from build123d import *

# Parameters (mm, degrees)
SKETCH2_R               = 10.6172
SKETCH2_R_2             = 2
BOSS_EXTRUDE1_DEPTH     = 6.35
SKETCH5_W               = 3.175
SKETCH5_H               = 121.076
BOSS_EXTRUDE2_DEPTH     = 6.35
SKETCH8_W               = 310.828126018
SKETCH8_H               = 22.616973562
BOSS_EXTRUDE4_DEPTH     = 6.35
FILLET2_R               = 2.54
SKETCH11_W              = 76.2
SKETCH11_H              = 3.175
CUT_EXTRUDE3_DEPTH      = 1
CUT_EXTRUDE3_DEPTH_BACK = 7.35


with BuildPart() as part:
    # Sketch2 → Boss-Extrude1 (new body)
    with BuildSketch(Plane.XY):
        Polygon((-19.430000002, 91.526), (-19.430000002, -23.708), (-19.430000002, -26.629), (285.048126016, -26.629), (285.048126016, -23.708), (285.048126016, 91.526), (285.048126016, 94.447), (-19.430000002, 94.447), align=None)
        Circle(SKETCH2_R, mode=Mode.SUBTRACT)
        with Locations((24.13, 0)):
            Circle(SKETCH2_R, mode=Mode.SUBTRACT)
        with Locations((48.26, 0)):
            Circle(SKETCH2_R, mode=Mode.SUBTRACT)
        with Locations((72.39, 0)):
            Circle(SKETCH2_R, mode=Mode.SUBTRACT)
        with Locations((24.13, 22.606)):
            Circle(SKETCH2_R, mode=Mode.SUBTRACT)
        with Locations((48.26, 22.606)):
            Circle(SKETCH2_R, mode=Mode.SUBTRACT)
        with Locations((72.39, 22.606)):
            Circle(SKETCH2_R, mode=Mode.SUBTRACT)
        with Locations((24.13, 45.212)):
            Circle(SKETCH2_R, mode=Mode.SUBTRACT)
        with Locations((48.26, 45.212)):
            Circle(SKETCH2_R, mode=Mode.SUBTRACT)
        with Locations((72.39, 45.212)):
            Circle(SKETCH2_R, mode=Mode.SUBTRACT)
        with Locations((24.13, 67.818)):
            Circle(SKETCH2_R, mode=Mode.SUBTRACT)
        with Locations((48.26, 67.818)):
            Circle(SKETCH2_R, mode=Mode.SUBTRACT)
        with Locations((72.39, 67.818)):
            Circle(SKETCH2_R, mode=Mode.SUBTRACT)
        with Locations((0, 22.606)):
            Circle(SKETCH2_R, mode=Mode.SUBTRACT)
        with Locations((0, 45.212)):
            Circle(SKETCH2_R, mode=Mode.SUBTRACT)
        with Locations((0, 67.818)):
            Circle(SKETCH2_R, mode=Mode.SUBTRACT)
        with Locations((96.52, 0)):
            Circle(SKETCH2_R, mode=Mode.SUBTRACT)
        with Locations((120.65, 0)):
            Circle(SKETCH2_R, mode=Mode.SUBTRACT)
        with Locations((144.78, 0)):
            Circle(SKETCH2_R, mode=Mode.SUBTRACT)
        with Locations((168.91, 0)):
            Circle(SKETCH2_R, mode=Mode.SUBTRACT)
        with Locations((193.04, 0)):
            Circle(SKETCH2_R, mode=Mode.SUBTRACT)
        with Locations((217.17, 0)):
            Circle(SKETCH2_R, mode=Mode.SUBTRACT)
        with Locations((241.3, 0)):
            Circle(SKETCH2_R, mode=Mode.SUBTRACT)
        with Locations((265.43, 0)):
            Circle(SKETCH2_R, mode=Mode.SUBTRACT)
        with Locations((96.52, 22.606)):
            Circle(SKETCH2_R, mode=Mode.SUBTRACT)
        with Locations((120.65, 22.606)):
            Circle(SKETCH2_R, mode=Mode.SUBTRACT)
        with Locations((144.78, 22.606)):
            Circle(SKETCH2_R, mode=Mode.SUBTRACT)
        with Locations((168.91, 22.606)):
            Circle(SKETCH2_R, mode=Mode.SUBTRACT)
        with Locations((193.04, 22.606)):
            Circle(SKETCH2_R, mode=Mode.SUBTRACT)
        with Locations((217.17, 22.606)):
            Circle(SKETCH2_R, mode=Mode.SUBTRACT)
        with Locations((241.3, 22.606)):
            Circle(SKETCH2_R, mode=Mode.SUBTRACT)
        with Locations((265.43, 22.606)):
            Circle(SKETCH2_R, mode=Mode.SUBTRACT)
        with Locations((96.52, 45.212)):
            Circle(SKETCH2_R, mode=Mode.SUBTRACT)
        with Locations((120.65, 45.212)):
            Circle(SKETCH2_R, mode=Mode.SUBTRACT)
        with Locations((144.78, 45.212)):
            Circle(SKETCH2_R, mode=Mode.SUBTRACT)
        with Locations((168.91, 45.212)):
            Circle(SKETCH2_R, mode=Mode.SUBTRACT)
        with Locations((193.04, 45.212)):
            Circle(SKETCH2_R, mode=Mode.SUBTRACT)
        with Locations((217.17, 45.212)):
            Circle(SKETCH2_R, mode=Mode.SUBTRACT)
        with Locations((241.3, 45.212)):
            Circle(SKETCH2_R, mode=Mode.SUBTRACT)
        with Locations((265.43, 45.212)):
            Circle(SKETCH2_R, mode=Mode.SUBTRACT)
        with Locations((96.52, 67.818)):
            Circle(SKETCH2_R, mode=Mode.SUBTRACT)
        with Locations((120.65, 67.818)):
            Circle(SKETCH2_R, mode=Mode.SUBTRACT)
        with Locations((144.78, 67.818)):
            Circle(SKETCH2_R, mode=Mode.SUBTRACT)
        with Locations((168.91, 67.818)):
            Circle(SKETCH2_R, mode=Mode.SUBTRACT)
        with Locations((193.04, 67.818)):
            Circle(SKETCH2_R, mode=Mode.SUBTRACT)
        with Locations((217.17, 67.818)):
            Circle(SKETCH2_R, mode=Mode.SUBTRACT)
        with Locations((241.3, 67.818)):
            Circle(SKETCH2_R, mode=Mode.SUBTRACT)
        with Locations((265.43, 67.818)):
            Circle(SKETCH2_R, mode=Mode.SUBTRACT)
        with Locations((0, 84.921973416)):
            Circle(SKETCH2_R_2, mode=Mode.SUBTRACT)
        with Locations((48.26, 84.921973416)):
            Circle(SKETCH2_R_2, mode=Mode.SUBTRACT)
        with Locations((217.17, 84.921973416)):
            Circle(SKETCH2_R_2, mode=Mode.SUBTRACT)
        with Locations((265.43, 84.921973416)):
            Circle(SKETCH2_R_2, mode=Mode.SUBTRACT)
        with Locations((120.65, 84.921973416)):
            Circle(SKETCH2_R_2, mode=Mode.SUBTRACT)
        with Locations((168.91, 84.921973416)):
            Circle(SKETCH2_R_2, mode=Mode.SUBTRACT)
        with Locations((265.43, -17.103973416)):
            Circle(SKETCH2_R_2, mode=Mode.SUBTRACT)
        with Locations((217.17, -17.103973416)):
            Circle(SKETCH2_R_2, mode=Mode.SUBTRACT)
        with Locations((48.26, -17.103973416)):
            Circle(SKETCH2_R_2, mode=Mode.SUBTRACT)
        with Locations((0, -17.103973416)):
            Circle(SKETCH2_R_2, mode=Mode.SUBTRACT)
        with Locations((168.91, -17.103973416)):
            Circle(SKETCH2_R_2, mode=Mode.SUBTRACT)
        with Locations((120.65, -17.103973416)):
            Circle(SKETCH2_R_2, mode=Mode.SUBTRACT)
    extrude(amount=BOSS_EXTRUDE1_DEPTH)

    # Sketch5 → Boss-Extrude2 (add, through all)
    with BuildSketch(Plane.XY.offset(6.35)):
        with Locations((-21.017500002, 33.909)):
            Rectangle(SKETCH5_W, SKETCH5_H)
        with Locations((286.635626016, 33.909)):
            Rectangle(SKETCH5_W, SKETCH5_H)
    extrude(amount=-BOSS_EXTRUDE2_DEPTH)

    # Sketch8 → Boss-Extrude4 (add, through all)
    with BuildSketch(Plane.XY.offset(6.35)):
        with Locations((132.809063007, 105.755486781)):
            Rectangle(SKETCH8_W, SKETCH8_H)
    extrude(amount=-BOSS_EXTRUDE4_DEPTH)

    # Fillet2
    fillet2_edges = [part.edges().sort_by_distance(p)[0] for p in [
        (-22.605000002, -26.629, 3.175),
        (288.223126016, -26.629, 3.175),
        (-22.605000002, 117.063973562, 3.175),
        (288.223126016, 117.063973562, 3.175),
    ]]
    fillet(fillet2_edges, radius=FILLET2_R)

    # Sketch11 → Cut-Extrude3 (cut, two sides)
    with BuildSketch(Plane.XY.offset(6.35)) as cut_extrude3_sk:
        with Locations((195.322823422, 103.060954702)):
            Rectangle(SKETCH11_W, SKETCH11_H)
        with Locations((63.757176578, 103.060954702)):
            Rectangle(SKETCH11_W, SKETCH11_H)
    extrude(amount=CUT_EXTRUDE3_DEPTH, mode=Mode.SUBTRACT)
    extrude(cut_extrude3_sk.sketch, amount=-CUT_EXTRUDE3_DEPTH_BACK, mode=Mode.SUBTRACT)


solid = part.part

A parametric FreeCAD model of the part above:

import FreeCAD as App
import Part
import Sketcher
from FreeCAD import Vector
Q = App.Units.Quantity


def edges_at(feature, points):
    """Names of the edges that pass closest to the given points."""
    edges = feature.Shape.Edges
    near = lambda p: min(range(len(edges)), key=lambda i: edges[i].distToShape(Part.Vertex(*p))[0])
    return sorted({f"Edge{near(p) + 1}" for p in points})


def add_polygon(sketch, points):
    """Adds a closed chain of lines whose ends are joined by coincident constraints."""
    first, n = sketch.GeometryCount, len(points)
    for a, b in zip(points, points[1:] + points[:1]):
        sketch.addGeometry(Part.LineSegment(App.Vector(*a, 0), App.Vector(*b, 0)), False)
    for i in range(n):
        sketch.addConstraint(Sketcher.Constraint("Coincident", first + i, 2, first + (i + 1) % n, 1))

doc = App.newDocument("Part")
params = doc.addObject("Spreadsheet::Sheet", "Params")
for row, (alias, value) in enumerate([
    ("sketch1_diameter", "0.836 in"),
    ("pad1_length", "0.25 in"),
    ("sketch2_width", "0.125 in"),
    ("pad3_length", "0.25 in"),
    ("fillet_radius", "0.1 in"),
    ("sketch4_width", "3 in"),
    ("sketch4_height", "0.125 in"),
], start=1):
    params.set(f"A{row}", alias)
    params.set(f"B{row}", "=" + value)
    params.setAlias(f"B{row}", alias)

body = doc.addObject("PartDesign::Body", "Body")

# Sketch on XY plane
sketch1 = body.newObject("Sketcher::SketchObject", "Sketch")
sketch1.AttachmentSupport = (doc.getObject("XY_Plane"), [""])
sketch1.MapMode = "FlatFace"
add_polygon(sketch1, [(-19.4, -26.6), (285, -26.6), (285, 94.4), (-19.4, 94.4)])  # lines 0-3
sketch1.addGeometry(Part.Circle(Vector(0, -17.1, 0), Vector(0, 0, 1), 2), False)  # 4
sketch1.addGeometry(Part.Circle(Vector(48.3, -17.1, 0), Vector(0, 0, 1), 2), False)  # 5
sketch1.addGeometry(Part.Circle(Vector(0, 0, 0), Vector(0, 0, 1), 10.6), False)  # 6
sketch1.addGeometry(Part.Circle(Vector(24.1, 0, 0), Vector(0, 0, 1), 10.6), False)  # 7
sketch1.addGeometry(Part.Circle(Vector(48.3, 0, 0), Vector(0, 0, 1), 10.6), False)  # 8
sketch1.addGeometry(Part.Circle(Vector(120.7, -17.1, 0), Vector(0, 0, 1), 2), False)  # 9
sketch1.addGeometry(Part.Circle(Vector(72.4, 0, 0), Vector(0, 0, 1), 10.6), False)  # 10
sketch1.addGeometry(Part.Circle(Vector(96.5, 0, 0), Vector(0, 0, 1), 10.6), False)  # 11
sketch1.addGeometry(Part.Circle(Vector(120.7, 0, 0), Vector(0, 0, 1), 10.6), False)  # 12
sketch1.addGeometry(Part.Circle(Vector(0, 22.6, 0), Vector(0, 0, 1), 10.6), False)  # 13
sketch1.addGeometry(Part.Circle(Vector(24.1, 22.6, 0), Vector(0, 0, 1), 10.6), False)  # 14
sketch1.addGeometry(Part.Circle(Vector(48.3, 22.6, 0), Vector(0, 0, 1), 10.6), False)  # 15
sketch1.addGeometry(Part.Circle(Vector(72.4, 22.6, 0), Vector(0, 0, 1), 10.6), False)  # 16
sketch1.addGeometry(Part.Circle(Vector(96.5, 22.6, 0), Vector(0, 0, 1), 10.6), False)  # 17
sketch1.addGeometry(Part.Circle(Vector(120.7, 22.6, 0), Vector(0, 0, 1), 10.6), False)  # 18
sketch1.addGeometry(Part.Circle(Vector(168.9, -17.1, 0), Vector(0, 0, 1), 2), False)  # 19
sketch1.addGeometry(Part.Circle(Vector(144.8, 0, 0), Vector(0, 0, 1), 10.6), False)  # 20
sketch1.addGeometry(Part.Circle(Vector(168.9, 0, 0), Vector(0, 0, 1), 10.6), False)  # 21
sketch1.addGeometry(Part.Circle(Vector(193, 0, 0), Vector(0, 0, 1), 10.6), False)  # 22
sketch1.addGeometry(Part.Circle(Vector(217.2, -17.1, 0), Vector(0, 0, 1), 2), False)  # 23
sketch1.addGeometry(Part.Circle(Vector(265.4, -17.1, 0), Vector(0, 0, 1), 2), False)  # 24
sketch1.addGeometry(Part.Circle(Vector(217.2, 0, 0), Vector(0, 0, 1), 10.6), False)  # 25
sketch1.addGeometry(Part.Circle(Vector(241.3, 0, 0), Vector(0, 0, 1), 10.6), False)  # 26
sketch1.addGeometry(Part.Circle(Vector(265.4, 0, 0), Vector(0, 0, 1), 10.6), False)  # 27
sketch1.addGeometry(Part.Circle(Vector(144.8, 22.6, 0), Vector(0, 0, 1), 10.6), False)  # 28
sketch1.addGeometry(Part.Circle(Vector(168.9, 22.6, 0), Vector(0, 0, 1), 10.6), False)  # 29
sketch1.addGeometry(Part.Circle(Vector(193, 22.6, 0), Vector(0, 0, 1), 10.6), False)  # 30
sketch1.addGeometry(Part.Circle(Vector(217.2, 22.6, 0), Vector(0, 0, 1), 10.6), False)  # 31
sketch1.addGeometry(Part.Circle(Vector(241.3, 22.6, 0), Vector(0, 0, 1), 10.6), False)  # 32
sketch1.addGeometry(Part.Circle(Vector(265.4, 22.6, 0), Vector(0, 0, 1), 10.6), False)  # 33
sketch1.addGeometry(Part.Circle(Vector(0, 45.2, 0), Vector(0, 0, 1), 10.6), False)  # 34
sketch1.addGeometry(Part.Circle(Vector(24.1, 45.2, 0), Vector(0, 0, 1), 10.6), False)  # 35
sketch1.addGeometry(Part.Circle(Vector(48.3, 45.2, 0), Vector(0, 0, 1), 10.6), False)  # 36
sketch1.addGeometry(Part.Circle(Vector(72.4, 45.2, 0), Vector(0, 0, 1), 10.6), False)  # 37
sketch1.addGeometry(Part.Circle(Vector(96.5, 45.2, 0), Vector(0, 0, 1), 10.6), False)  # 38
sketch1.addGeometry(Part.Circle(Vector(120.7, 45.2, 0), Vector(0, 0, 1), 10.6), False)  # 39
sketch1.addGeometry(Part.Circle(Vector(0, 67.8, 0), Vector(0, 0, 1), 10.6), False)  # 40
sketch1.addGeometry(Part.Circle(Vector(24.1, 67.8, 0), Vector(0, 0, 1), 10.6), False)  # 41
sketch1.addGeometry(Part.Circle(Vector(48.3, 67.8, 0), Vector(0, 0, 1), 10.6), False)  # 42
sketch1.addGeometry(Part.Circle(Vector(0, 84.9, 0), Vector(0, 0, 1), 2), False)  # 43
sketch1.addGeometry(Part.Circle(Vector(48.3, 84.9, 0), Vector(0, 0, 1), 2), False)  # 44
sketch1.addGeometry(Part.Circle(Vector(72.4, 67.8, 0), Vector(0, 0, 1), 10.6), False)  # 45
sketch1.addGeometry(Part.Circle(Vector(96.5, 67.8, 0), Vector(0, 0, 1), 10.6), False)  # 46
sketch1.addGeometry(Part.Circle(Vector(120.7, 67.8, 0), Vector(0, 0, 1), 10.6), False)  # 47
sketch1.addGeometry(Part.Circle(Vector(120.7, 84.9, 0), Vector(0, 0, 1), 2), False)  # 48
sketch1.addGeometry(Part.Circle(Vector(144.8, 45.2, 0), Vector(0, 0, 1), 10.6), False)  # 49
sketch1.addGeometry(Part.Circle(Vector(168.9, 45.2, 0), Vector(0, 0, 1), 10.6), False)  # 50
sketch1.addGeometry(Part.Circle(Vector(193, 45.2, 0), Vector(0, 0, 1), 10.6), False)  # 51
sketch1.addGeometry(Part.Circle(Vector(217.2, 45.2, 0), Vector(0, 0, 1), 10.6), False)  # 52
sketch1.addGeometry(Part.Circle(Vector(241.3, 45.2, 0), Vector(0, 0, 1), 10.6), False)  # 53
sketch1.addGeometry(Part.Circle(Vector(265.4, 45.2, 0), Vector(0, 0, 1), 10.6), False)  # 54
sketch1.addGeometry(Part.Circle(Vector(144.8, 67.8, 0), Vector(0, 0, 1), 10.6), False)  # 55
sketch1.addGeometry(Part.Circle(Vector(168.9, 67.8, 0), Vector(0, 0, 1), 10.6), False)  # 56
sketch1.addGeometry(Part.Circle(Vector(193, 67.8, 0), Vector(0, 0, 1), 10.6), False)  # 57
sketch1.addGeometry(Part.Circle(Vector(168.9, 84.9, 0), Vector(0, 0, 1), 2), False)  # 58
sketch1.addGeometry(Part.Circle(Vector(217.2, 67.8, 0), Vector(0, 0, 1), 10.6), False)  # 59
sketch1.addGeometry(Part.Circle(Vector(241.3, 67.8, 0), Vector(0, 0, 1), 10.6), False)  # 60
sketch1.addGeometry(Part.Circle(Vector(265.4, 67.8, 0), Vector(0, 0, 1), 10.6), False)  # 61
sketch1.addGeometry(Part.Circle(Vector(217.2, 84.9, 0), Vector(0, 0, 1), 2), False)  # 62
sketch1.addGeometry(Part.Circle(Vector(265.4, 84.9, 0), Vector(0, 0, 1), 2), False)  # 63
sketch1.addConstraint([
    Sketcher.Constraint("Horizontal", 0),
    Sketcher.Constraint("Vertical", 1),
    Sketcher.Constraint("Horizontal", 2),
    Sketcher.Constraint("Vertical", 3),
    Sketcher.Constraint("Coincident", 6, 3, -1, 1),
    Sketcher.Constraint("Equal", 4, 5),
    Sketcher.Constraint("Equal", 6, 7),
    Sketcher.Constraint("Equal", 7, 8),
    Sketcher.Constraint("Equal", 5, 9),
    Sketcher.Constraint("Equal", 8, 10),
    Sketcher.Constraint("Equal", 10, 11),
    Sketcher.Constraint("Equal", 11, 12),
    Sketcher.Constraint("Equal", 12, 13),
    Sketcher.Constraint("Equal", 13, 14),
    Sketcher.Constraint("Equal", 14, 15),
    Sketcher.Constraint("Equal", 15, 16),
    Sketcher.Constraint("Equal", 16, 17),
    Sketcher.Constraint("Equal", 17, 18),
    Sketcher.Constraint("Equal", 9, 19),
    Sketcher.Constraint("Equal", 18, 20),
    Sketcher.Constraint("Equal", 20, 21),
    Sketcher.Constraint("Equal", 21, 22),
    Sketcher.Constraint("Equal", 19, 23),
    Sketcher.Constraint("Equal", 23, 24),
    Sketcher.Constraint("Equal", 22, 25),
    Sketcher.Constraint("Equal", 25, 26),
    Sketcher.Constraint("Equal", 26, 27),
    Sketcher.Constraint("Equal", 27, 28),
    Sketcher.Constraint("Equal", 28, 29),
    Sketcher.Constraint("Equal", 29, 30),
    Sketcher.Constraint("Equal", 30, 31),
    Sketcher.Constraint("Equal", 31, 32),
    Sketcher.Constraint("Equal", 32, 33),
    Sketcher.Constraint("Equal", 33, 34),
    Sketcher.Constraint("Equal", 34, 35),
    Sketcher.Constraint("Equal", 35, 36),
    Sketcher.Constraint("Equal", 36, 37),
    Sketcher.Constraint("Equal", 37, 38),
    Sketcher.Constraint("Equal", 38, 39),
    Sketcher.Constraint("Equal", 39, 40),
    Sketcher.Constraint("Equal", 40, 41),
    Sketcher.Constraint("Equal", 41, 42),
    Sketcher.Constraint("Equal", 24, 43),
    Sketcher.Constraint("Equal", 43, 44),
    Sketcher.Constraint("Equal", 42, 45),
    Sketcher.Constraint("Equal", 45, 46),
    Sketcher.Constraint("Equal", 46, 47),
    Sketcher.Constraint("Equal", 44, 48),
    Sketcher.Constraint("Equal", 47, 49),
    Sketcher.Constraint("Equal", 49, 50),
    Sketcher.Constraint("Equal", 50, 51),
    Sketcher.Constraint("Equal", 51, 52),
    Sketcher.Constraint("Equal", 52, 53),
    Sketcher.Constraint("Equal", 53, 54),
    Sketcher.Constraint("Equal", 54, 55),
    Sketcher.Constraint("Equal", 55, 56),
    Sketcher.Constraint("Equal", 56, 57),
    Sketcher.Constraint("Equal", 48, 58),
    Sketcher.Constraint("Equal", 57, 59),
    Sketcher.Constraint("Equal", 59, 60),
    Sketcher.Constraint("Equal", 60, 61),
    Sketcher.Constraint("Equal", 58, 62),
    Sketcher.Constraint("Equal", 62, 63),
    Sketcher.Constraint("PointOnObject", 4, 3, -2),
    Sketcher.Constraint("PointOnObject", 7, 3, -1),
    Sketcher.Constraint("PointOnObject", 8, 3, -1),
    Sketcher.Constraint("PointOnObject", 10, 3, -1),
    Sketcher.Constraint("PointOnObject", 11, 3, -1),
    Sketcher.Constraint("PointOnObject", 12, 3, -1),
    Sketcher.Constraint("PointOnObject", 13, 3, -2),
    Sketcher.Constraint("PointOnObject", 20, 3, -1),
    Sketcher.Constraint("PointOnObject", 21, 3, -1),
    Sketcher.Constraint("PointOnObject", 22, 3, -1),
    Sketcher.Constraint("PointOnObject", 25, 3, -1),
    Sketcher.Constraint("PointOnObject", 26, 3, -1),
    Sketcher.Constraint("PointOnObject", 27, 3, -1),
    Sketcher.Constraint("PointOnObject", 34, 3, -2),
    Sketcher.Constraint("PointOnObject", 40, 3, -2),
    Sketcher.Constraint("PointOnObject", 43, 3, -2),
    Sketcher.Constraint("Horizontal", 4, 3, 5, 3),
    Sketcher.Constraint("Horizontal", 5, 3, 9, 3),
    Sketcher.Constraint("Horizontal", 13, 3, 14, 3),
    Sketcher.Constraint("Horizontal", 14, 3, 15, 3),
    Sketcher.Constraint("Horizontal", 15, 3, 16, 3),
    Sketcher.Constraint("Horizontal", 16, 3, 17, 3),
    Sketcher.Constraint("Horizontal", 17, 3, 18, 3),
    Sketcher.Constraint("Horizontal", 9, 3, 19, 3),
    Sketcher.Constraint("Horizontal", 19, 3, 23, 3),
    Sketcher.Constraint("Horizontal", 23, 3, 24, 3),
    Sketcher.Constraint("Horizontal", 18, 3, 28, 3),
    Sketcher.Constraint("Horizontal", 28, 3, 29, 3),
    Sketcher.Constraint("Horizontal", 29, 3, 30, 3),
    Sketcher.Constraint("Horizontal", 30, 3, 31, 3),
    Sketcher.Constraint("Horizontal", 31, 3, 32, 3),
    Sketcher.Constraint("Horizontal", 32, 3, 33, 3),
    Sketcher.Constraint("Horizontal", 34, 3, 35, 3),
    Sketcher.Constraint("Horizontal", 35, 3, 36, 3),
    Sketcher.Constraint("Horizontal", 36, 3, 37, 3),
    Sketcher.Constraint("Horizontal", 37, 3, 38, 3),
    Sketcher.Constraint("Horizontal", 38, 3, 39, 3),
    Sketcher.Constraint("Horizontal", 40, 3, 41, 3),
    Sketcher.Constraint("Horizontal", 41, 3, 42, 3),
    Sketcher.Constraint("Horizontal", 43, 3, 44, 3),
    Sketcher.Constraint("Horizontal", 42, 3, 45, 3),
    Sketcher.Constraint("Horizontal", 45, 3, 46, 3),
    Sketcher.Constraint("Horizontal", 46, 3, 47, 3),
    Sketcher.Constraint("Horizontal", 44, 3, 48, 3),
    Sketcher.Constraint("Horizontal", 39, 3, 49, 3),
    Sketcher.Constraint("Horizontal", 49, 3, 50, 3),
    Sketcher.Constraint("Horizontal", 50, 3, 51, 3),
    Sketcher.Constraint("Horizontal", 51, 3, 52, 3),
    Sketcher.Constraint("Horizontal", 52, 3, 53, 3),
    Sketcher.Constraint("Horizontal", 53, 3, 54, 3),
    Sketcher.Constraint("Horizontal", 47, 3, 55, 3),
    Sketcher.Constraint("Horizontal", 55, 3, 56, 3),
    Sketcher.Constraint("Horizontal", 56, 3, 57, 3),
    Sketcher.Constraint("Horizontal", 48, 3, 58, 3),
    Sketcher.Constraint("Horizontal", 57, 3, 59, 3),
    Sketcher.Constraint("Horizontal", 59, 3, 60, 3),
    Sketcher.Constraint("Horizontal", 60, 3, 61, 3),
    Sketcher.Constraint("Horizontal", 58, 3, 62, 3),
    Sketcher.Constraint("Horizontal", 62, 3, 63, 3),
    Sketcher.Constraint("Vertical", 5, 3, 8, 3),
    Sketcher.Constraint("Vertical", 9, 3, 12, 3),
    Sketcher.Constraint("Vertical", 7, 3, 14, 3),
    Sketcher.Constraint("Vertical", 8, 3, 15, 3),
    Sketcher.Constraint("Vertical", 10, 3, 16, 3),
    Sketcher.Constraint("Vertical", 11, 3, 17, 3),
    Sketcher.Constraint("Vertical", 12, 3, 18, 3),
    Sketcher.Constraint("Vertical", 19, 3, 21, 3),
    Sketcher.Constraint("Vertical", 23, 3, 25, 3),
    Sketcher.Constraint("Vertical", 24, 3, 27, 3),
    Sketcher.Constraint("Vertical", 20, 3, 28, 3),
    Sketcher.Constraint("Vertical", 21, 3, 29, 3),
    Sketcher.Constraint("Vertical", 22, 3, 30, 3),
    Sketcher.Constraint("Vertical", 25, 3, 31, 3),
    Sketcher.Constraint("Vertical", 26, 3, 32, 3),
    Sketcher.Constraint("Vertical", 27, 3, 33, 3),
    Sketcher.Constraint("Vertical", 14, 3, 35, 3),
    Sketcher.Constraint("Vertical", 15, 3, 36, 3),
    Sketcher.Constraint("Vertical", 16, 3, 37, 3),
    Sketcher.Constraint("Vertical", 17, 3, 38, 3),
    Sketcher.Constraint("Vertical", 18, 3, 39, 3),
    Sketcher.Constraint("Vertical", 35, 3, 41, 3),
    Sketcher.Constraint("Vertical", 36, 3, 42, 3),
    Sketcher.Constraint("Vertical", 42, 3, 44, 3),
    Sketcher.Constraint("Vertical", 37, 3, 45, 3),
    Sketcher.Constraint("Vertical", 38, 3, 46, 3),
    Sketcher.Constraint("Vertical", 39, 3, 47, 3),
    Sketcher.Constraint("Vertical", 47, 3, 48, 3),
    Sketcher.Constraint("Vertical", 28, 3, 49, 3),
    Sketcher.Constraint("Vertical", 29, 3, 50, 3),
    Sketcher.Constraint("Vertical", 30, 3, 51, 3),
    Sketcher.Constraint("Vertical", 31, 3, 52, 3),
    Sketcher.Constraint("Vertical", 32, 3, 53, 3),
    Sketcher.Constraint("Vertical", 33, 3, 54, 3),
    Sketcher.Constraint("Vertical", 49, 3, 55, 3),
    Sketcher.Constraint("Vertical", 50, 3, 56, 3),
    Sketcher.Constraint("Vertical", 51, 3, 57, 3),
    Sketcher.Constraint("Vertical", 56, 3, 58, 3),
    Sketcher.Constraint("Vertical", 52, 3, 59, 3),
    Sketcher.Constraint("Vertical", 53, 3, 60, 3),
    Sketcher.Constraint("Vertical", 54, 3, 61, 3),
    Sketcher.Constraint("Vertical", 59, 3, 62, 3),
    Sketcher.Constraint("Vertical", 61, 3, 63, 3),
    Sketcher.Constraint("Diameter", 6, Q("0.836 in")),
    Sketcher.Constraint("DistanceX", -1, 1, 5, 3, Q("1.9 in")),
    Sketcher.Constraint("DistanceX", -1, 1, 11, 3, Q("3.8 in")),
    Sketcher.Constraint("DistanceX", -1, 1, 20, 3, Q("5.7 in")),
    Sketcher.Constraint("DistanceX", -1, 1, 22, 3, Q("7.6 in")),
    Sketcher.Constraint("DistanceX", -1, 1, 26, 3, Q("9.5 in")),
    Sketcher.Constraint("Diameter", 4, 4.0),
    Sketcher.Constraint("DistanceX", -1, 1, 7, 3, Q("0.95 in")),
    Sketcher.Constraint("DistanceX", -1, 1, 9, 3, Q("4.75 in")),
    Sketcher.Constraint("DistanceX", -1, 1, 10, 3, Q("2.85 in")),
    Sketcher.Constraint("DistanceY", -1, 1, 13, 3, Q("0.89 in")),
    Sketcher.Constraint("DistanceX", -1, 1, 19, 3, Q("6.65 in")),
    Sketcher.Constraint("DistanceX", -1, 1, 23, 3, Q("8.55 in")),
    Sketcher.Constraint("DistanceX", -1, 1, 24, 3, Q("10.45 in")),
    Sketcher.Constraint("DistanceY", -1, 1, 34, 3, Q("1.78 in")),
    Sketcher.Constraint("DistanceY", -1, 1, 40, 3, Q("2.67 in")),
    Sketcher.Constraint("DistanceY", 1, 1, 1, 2, 121.076),
    Sketcher.Constraint("DistanceY", 0, 2, -1, 1, 26.629),
    Sketcher.Constraint("DistanceX", 2, 2, -1, 1, 19.43),
    Sketcher.Constraint("DistanceX", 0, 1, 0, 2, 304.478126),
    Sketcher.Constraint("DistanceY", 4, 3, -1, 1, 17.103973),
    Sketcher.Constraint("DistanceY", -1, 1, 43, 3, 84.921973),
])
sketch1.setExpression("Constraints[169]", "Params.sketch1_diameter")
pad1 = body.newObject("PartDesign::Pad", "Pad")
pad1.Profile = sketch1
pad1.setExpression("Length", "Params.pad1_length")

# Sketch on XY plane
sketch2 = body.newObject("Sketcher::SketchObject", "Sketch001")
sketch2.AttachmentSupport = (doc.getObject("XY_Plane"), [""])
sketch2.MapMode = "FlatFace"
sketch2.AttachmentOffset = App.Placement(Vector(0, 0, 0.25 * 25.4), App.Rotation())
add_polygon(sketch2, [(-22.6, 94.4), (-22.6, -26.6), (-19.4, -26.6), (-19.4, 94.4)])  # lines 0-3
add_polygon(sketch2, [(285, 94.4), (285, -26.6), (288.2, -26.6), (288.2, 94.4)])  # lines 4-7
sketch2.addConstraint([
    Sketcher.Constraint("Vertical", 0),
    Sketcher.Constraint("Horizontal", 1),
    Sketcher.Constraint("Vertical", 2),
    Sketcher.Constraint("Horizontal", 3),
    Sketcher.Constraint("Vertical", 4),
    Sketcher.Constraint("Horizontal", 5),
    Sketcher.Constraint("Vertical", 6),
    Sketcher.Constraint("Horizontal", 7),
    Sketcher.Constraint("Horizontal", 1, 2, 4, 2),
    Sketcher.Constraint("Horizontal", 3, 2, 6, 2),
    Sketcher.Constraint("Equal", 3, 5),
    Sketcher.Constraint("DistanceX", 1, 1, 1, 2, Q("0.125 in")),
    Sketcher.Constraint("DistanceY", 0, 2, 0, 1, 121.076),
    Sketcher.Constraint("DistanceX", 0, 2, -1, 1, 22.605),
    Sketcher.Constraint("DistanceY", 0, 2, -1, 1, 26.629),
    Sketcher.Constraint("DistanceX", -1, 1, 4, 2, 285.048126),
])
sketch2.setExpression("Constraints[19]", "Params.sketch2_width")
pad2 = body.newObject("PartDesign::Pad", "Pad001")
pad2.Profile = sketch2
pad2.Type = "UpToLast"
pad2.Reversed = True

# Sketch on XY plane
sketch3 = body.newObject("Sketcher::SketchObject", "Sketch002")
sketch3.AttachmentSupport = (doc.getObject("XY_Plane"), [""])
sketch3.MapMode = "FlatFace"
sketch3.AttachmentOffset = App.Placement(Vector(0, 0, 0.25 * 25.4), App.Rotation())
add_polygon(sketch3, [(-23, 117), (-23, 94), (288, 94), (288, 117)])  # lines 0-3
sketch3.addConstraint([
    Sketcher.Constraint("Vertical", 0),
    Sketcher.Constraint("Horizontal", 1),
    Sketcher.Constraint("Vertical", 2),
    Sketcher.Constraint("Horizontal", 3),
    Sketcher.Constraint("DistanceX", 0, 2, -1, 1, 22.605),
    Sketcher.Constraint("DistanceY", -1, 1, 0, 2, 94.447),
    Sketcher.Constraint("DistanceX", 1, 1, 1, 2, 310.828126),
    Sketcher.Constraint("DistanceY", 0, 2, 0, 1, 22.616974),
])
pad3 = body.newObject("PartDesign::Pad", "Pad002")
pad3.Profile = sketch3
pad3.setExpression("Length", "Params.pad3_length")
pad3.Reversed = True
doc.recompute()

fillet = body.newObject("PartDesign::Fillet", "Fillet")
fillet.Base = (pad3, edges_at(pad3, [
    (-22.605, -26.629, 3.175),
    (288.223, -26.629, 3.175),
    (-22.605, 117.064, 3.175),
    (288.223, 117.064, 3.175),
]))
fillet.setExpression("Radius", "Params.fillet_radius")

# Sketch on XY plane
sketch4 = body.newObject("Sketcher::SketchObject", "Sketch003")
sketch4.AttachmentSupport = (doc.getObject("XY_Plane"), [""])
sketch4.MapMode = "FlatFace"
sketch4.AttachmentOffset = App.Placement(Vector(0, 0, 0.25 * 25.4), App.Rotation())
add_polygon(sketch4, [(157.2, 104.6), (157.2, 101.5), (233.4, 101.5), (233.4, 104.6)])  # lines 0-3
add_polygon(sketch4, [(25.7, 104.6), (25.7, 101.5), (101.9, 101.5), (101.9, 104.6)])  # lines 4-7
sketch4.addConstraint([
    Sketcher.Constraint("Vertical", 0),
    Sketcher.Constraint("Horizontal", 1),
    Sketcher.Constraint("Vertical", 2),
    Sketcher.Constraint("Horizontal", 3),
    Sketcher.Constraint("Vertical", 4),
    Sketcher.Constraint("Horizontal", 5),
    Sketcher.Constraint("Vertical", 6),
    Sketcher.Constraint("Horizontal", 7),
    Sketcher.Constraint("Horizontal", 1, 2, 4, 2),
    Sketcher.Constraint("Horizontal", 3, 2, 6, 2),
    Sketcher.Constraint("Equal", 3, 5),
    Sketcher.Constraint("DistanceX", 1, 1, 1, 2, Q("3 in")),
    Sketcher.Constraint("DistanceY", 0, 2, 0, 1, Q("0.125 in")),
    Sketcher.Constraint("DistanceX", -1, 1, 0, 2, 157.222823),
    Sketcher.Constraint("DistanceY", -1, 1, 0, 2, 101.473455),
    Sketcher.Constraint("DistanceX", -1, 1, 4, 2, 25.657177),
])
sketch4.setExpression("Constraints[19]", "Params.sketch4_width")
sketch4.setExpression("Constraints[20]", "Params.sketch4_height")
pocket1 = body.newObject("PartDesign::Pocket", "Pocket")
pocket1.Profile = sketch4
pocket1.Type = "ThroughAll"
pocket1.Midplane = True

doc.recompute()
